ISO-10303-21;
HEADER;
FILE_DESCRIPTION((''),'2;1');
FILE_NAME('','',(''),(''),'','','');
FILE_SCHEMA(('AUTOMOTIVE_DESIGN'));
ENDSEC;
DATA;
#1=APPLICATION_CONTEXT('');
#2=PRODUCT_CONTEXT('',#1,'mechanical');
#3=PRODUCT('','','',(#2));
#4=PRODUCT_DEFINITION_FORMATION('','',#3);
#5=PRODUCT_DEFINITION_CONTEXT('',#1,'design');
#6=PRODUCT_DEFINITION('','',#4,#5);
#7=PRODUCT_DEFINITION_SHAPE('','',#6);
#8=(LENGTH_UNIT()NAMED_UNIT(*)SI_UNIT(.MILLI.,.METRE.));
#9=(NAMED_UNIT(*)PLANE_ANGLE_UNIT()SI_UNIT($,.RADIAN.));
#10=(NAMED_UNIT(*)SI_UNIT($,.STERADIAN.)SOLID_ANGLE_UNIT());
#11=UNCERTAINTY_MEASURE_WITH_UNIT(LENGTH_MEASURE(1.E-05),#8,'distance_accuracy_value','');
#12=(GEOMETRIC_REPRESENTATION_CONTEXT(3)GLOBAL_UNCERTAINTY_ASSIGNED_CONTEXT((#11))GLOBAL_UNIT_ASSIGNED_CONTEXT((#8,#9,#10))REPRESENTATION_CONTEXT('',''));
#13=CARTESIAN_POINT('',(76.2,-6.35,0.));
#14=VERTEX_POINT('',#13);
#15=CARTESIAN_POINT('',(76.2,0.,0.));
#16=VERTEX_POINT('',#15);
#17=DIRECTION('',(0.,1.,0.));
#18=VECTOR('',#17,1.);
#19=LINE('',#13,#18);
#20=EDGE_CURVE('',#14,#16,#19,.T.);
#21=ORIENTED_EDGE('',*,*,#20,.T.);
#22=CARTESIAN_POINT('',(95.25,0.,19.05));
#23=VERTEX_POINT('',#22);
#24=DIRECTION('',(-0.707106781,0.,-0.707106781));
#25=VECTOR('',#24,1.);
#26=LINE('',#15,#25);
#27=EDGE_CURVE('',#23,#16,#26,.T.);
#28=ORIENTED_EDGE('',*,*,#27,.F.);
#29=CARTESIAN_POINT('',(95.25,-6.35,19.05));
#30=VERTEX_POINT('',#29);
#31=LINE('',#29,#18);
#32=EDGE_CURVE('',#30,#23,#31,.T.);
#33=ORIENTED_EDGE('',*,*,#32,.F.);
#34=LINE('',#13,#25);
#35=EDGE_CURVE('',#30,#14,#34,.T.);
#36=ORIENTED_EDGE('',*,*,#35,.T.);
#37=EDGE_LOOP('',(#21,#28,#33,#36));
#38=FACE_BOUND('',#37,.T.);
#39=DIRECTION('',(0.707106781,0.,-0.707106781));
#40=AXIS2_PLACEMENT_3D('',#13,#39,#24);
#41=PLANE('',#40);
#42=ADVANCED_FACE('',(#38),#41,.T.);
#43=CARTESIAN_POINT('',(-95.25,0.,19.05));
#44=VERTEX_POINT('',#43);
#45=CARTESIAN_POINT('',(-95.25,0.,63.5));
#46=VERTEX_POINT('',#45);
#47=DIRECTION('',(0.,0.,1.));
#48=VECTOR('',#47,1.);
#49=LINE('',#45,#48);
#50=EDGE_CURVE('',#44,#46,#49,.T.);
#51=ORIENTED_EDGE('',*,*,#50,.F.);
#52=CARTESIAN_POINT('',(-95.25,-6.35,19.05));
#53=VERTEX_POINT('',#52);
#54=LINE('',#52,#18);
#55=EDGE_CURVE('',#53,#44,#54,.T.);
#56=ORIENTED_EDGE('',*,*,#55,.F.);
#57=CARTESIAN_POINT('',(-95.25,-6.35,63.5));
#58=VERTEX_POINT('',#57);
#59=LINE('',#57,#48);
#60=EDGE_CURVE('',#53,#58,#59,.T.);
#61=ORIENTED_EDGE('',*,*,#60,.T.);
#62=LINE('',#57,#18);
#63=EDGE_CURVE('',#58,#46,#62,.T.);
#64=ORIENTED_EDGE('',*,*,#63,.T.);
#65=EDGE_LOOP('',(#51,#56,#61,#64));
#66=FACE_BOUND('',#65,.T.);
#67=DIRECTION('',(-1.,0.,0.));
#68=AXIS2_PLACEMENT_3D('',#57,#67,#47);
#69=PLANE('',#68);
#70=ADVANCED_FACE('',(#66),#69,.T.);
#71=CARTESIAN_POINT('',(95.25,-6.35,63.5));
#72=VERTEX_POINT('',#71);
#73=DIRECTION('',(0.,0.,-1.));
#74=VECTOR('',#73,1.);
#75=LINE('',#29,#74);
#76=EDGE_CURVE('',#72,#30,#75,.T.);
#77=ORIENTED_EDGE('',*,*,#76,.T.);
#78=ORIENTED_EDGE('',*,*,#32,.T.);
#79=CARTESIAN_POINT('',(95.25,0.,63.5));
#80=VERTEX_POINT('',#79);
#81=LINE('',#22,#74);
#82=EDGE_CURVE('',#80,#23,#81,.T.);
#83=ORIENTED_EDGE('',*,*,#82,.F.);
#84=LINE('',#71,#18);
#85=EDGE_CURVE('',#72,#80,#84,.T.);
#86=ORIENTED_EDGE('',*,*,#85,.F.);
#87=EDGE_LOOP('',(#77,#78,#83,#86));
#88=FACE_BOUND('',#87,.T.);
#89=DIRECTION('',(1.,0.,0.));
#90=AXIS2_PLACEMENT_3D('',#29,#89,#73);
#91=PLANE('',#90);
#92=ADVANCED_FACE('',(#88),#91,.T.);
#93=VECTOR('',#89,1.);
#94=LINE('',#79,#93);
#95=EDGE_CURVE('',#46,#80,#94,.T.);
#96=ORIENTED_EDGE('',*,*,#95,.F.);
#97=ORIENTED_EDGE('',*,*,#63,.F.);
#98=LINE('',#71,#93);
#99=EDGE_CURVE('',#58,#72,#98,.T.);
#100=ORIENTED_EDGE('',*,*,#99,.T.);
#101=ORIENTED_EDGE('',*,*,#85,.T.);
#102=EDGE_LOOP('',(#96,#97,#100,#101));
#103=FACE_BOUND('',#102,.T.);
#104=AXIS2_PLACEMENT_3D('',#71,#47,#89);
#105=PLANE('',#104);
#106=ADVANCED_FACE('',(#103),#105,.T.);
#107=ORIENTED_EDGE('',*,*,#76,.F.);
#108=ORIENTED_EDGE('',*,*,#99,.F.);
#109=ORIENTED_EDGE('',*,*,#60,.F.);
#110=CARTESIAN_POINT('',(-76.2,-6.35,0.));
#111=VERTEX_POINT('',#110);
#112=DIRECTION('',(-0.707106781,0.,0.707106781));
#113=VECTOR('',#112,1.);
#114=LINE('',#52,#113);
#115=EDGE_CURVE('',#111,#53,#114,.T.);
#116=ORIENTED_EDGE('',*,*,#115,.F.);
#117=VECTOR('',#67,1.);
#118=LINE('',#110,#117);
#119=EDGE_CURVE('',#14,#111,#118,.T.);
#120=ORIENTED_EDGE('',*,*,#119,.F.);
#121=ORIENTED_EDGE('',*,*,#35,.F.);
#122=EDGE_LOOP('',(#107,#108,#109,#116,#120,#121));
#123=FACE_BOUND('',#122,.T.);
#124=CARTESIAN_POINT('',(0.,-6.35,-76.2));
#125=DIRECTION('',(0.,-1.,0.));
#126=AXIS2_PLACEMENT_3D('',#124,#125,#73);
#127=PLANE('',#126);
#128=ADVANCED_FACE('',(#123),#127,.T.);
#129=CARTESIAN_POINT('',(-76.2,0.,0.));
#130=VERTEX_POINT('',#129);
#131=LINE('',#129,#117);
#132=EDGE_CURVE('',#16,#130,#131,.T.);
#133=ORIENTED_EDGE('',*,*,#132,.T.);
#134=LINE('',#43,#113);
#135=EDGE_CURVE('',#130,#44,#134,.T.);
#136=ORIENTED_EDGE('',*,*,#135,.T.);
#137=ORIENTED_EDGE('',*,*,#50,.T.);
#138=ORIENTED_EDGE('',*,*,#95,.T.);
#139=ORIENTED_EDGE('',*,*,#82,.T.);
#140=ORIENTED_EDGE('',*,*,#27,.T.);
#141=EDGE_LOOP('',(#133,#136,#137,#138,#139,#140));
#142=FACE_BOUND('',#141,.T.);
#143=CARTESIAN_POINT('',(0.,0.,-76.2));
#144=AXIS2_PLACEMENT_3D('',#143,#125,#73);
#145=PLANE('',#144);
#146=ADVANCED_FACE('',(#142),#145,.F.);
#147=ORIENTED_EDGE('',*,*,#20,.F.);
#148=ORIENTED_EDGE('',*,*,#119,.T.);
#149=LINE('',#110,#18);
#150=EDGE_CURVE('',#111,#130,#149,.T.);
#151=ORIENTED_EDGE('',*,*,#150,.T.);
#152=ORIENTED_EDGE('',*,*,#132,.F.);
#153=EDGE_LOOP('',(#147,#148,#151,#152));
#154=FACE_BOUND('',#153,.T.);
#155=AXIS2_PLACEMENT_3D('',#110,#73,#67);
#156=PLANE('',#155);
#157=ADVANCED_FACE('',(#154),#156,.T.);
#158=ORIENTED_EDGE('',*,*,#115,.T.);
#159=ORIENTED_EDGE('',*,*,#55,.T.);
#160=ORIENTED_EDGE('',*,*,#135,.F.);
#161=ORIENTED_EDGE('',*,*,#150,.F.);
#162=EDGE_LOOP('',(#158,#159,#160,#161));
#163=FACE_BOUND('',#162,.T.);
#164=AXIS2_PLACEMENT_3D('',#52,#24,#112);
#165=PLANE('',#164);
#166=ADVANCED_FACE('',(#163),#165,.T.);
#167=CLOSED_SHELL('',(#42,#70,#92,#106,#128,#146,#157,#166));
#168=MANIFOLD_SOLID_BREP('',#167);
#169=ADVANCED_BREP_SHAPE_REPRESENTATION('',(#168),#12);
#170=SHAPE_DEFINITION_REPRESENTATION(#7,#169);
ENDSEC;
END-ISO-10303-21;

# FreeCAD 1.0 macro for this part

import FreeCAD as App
import Part
import Sketcher
Q = App.Units.Quantity

doc = App.newDocument("Part")
body = doc.addObject("PartDesign::Body", "Body")

sketch1 = body.newObject("Sketcher::SketchObject", "Sketch")
sketch1.AttachmentSupport = (doc.getObject("XZ_Plane"), [""])
sketch1.MapMode = "FlatFace"
sketch1.addGeometry(Part.LineSegment(App.Vector(76, 0, 0), App.Vector(-76, 0, 0)), False)
sketch1.addGeometry(Part.LineSegment(App.Vector(-76, 0, 0), App.Vector(-95, 19, 0)), False)
sketch1.addGeometry(Part.LineSegment(App.Vector(-95, 19, 0), App.Vector(-95, 64, 0)), False)
sketch1.addGeometry(Part.LineSegment(App.Vector(-95, 64, 0), App.Vector(95, 64, 0)), False)
sketch1.addGeometry(Part.LineSegment(App.Vector(95, 64, 0), App.Vector(95, 19, 0)), False)
sketch1.addGeometry(Part.LineSegment(App.Vector(95, 19, 0), App.Vector(76, 0, 0)), False)
sketch1.addConstraint(Sketcher.Constraint("Coincident", 0, 2, 1, 1))
sketch1.addConstraint(Sketcher.Constraint("Coincident", 1, 2, 2, 1))
sketch1.addConstraint(Sketcher.Constraint("Coincident", 2, 2, 3, 1))
sketch1.addConstraint(Sketcher.Constraint("Coincident", 3, 2, 4, 1))
sketch1.addConstraint(Sketcher.Constraint("Coincident", 4, 2, 5, 1))
sketch1.addConstraint(Sketcher.Constraint("Coincident", 5, 2, 0, 1))
sketch1.addConstraint(Sketcher.Constraint("Horizontal", 0))
sketch1.addConstraint(Sketcher.Constraint("Vertical", 2))
sketch1.addConstraint(Sketcher.Constraint("Horizontal", 3))
sketch1.addConstraint(Sketcher.Constraint("Vertical", 4))
sketch1.addConstraint(Sketcher.Constraint("Symmetric", 0, 2, 5, 2, -1, 1))
sketch1.addConstraint(Sketcher.Constraint("Symmetric", 1, 2, 4, 2, -2))
sketch1.addConstraint(Sketcher.Constraint("Perpendicular", 1, 5))
sketch1.addConstraint(Sketcher.Constraint("DistanceX", 0, 2, 0, 1, Q("6 in")))
sketch1.addConstraint(Sketcher.Constraint("DistanceX", 3, 1, 3, 2, Q("7.5 in")))
sketch1.addConstraint(Sketcher.Constraint("DistanceY", 2, 1, 2, 2, Q("1.75 in")))
pad1 = body.newObject("PartDesign::Pad", "Pad")
pad1.Profile = sketch1
pad1.Length = Q("0.25 in")

doc.recompute()
